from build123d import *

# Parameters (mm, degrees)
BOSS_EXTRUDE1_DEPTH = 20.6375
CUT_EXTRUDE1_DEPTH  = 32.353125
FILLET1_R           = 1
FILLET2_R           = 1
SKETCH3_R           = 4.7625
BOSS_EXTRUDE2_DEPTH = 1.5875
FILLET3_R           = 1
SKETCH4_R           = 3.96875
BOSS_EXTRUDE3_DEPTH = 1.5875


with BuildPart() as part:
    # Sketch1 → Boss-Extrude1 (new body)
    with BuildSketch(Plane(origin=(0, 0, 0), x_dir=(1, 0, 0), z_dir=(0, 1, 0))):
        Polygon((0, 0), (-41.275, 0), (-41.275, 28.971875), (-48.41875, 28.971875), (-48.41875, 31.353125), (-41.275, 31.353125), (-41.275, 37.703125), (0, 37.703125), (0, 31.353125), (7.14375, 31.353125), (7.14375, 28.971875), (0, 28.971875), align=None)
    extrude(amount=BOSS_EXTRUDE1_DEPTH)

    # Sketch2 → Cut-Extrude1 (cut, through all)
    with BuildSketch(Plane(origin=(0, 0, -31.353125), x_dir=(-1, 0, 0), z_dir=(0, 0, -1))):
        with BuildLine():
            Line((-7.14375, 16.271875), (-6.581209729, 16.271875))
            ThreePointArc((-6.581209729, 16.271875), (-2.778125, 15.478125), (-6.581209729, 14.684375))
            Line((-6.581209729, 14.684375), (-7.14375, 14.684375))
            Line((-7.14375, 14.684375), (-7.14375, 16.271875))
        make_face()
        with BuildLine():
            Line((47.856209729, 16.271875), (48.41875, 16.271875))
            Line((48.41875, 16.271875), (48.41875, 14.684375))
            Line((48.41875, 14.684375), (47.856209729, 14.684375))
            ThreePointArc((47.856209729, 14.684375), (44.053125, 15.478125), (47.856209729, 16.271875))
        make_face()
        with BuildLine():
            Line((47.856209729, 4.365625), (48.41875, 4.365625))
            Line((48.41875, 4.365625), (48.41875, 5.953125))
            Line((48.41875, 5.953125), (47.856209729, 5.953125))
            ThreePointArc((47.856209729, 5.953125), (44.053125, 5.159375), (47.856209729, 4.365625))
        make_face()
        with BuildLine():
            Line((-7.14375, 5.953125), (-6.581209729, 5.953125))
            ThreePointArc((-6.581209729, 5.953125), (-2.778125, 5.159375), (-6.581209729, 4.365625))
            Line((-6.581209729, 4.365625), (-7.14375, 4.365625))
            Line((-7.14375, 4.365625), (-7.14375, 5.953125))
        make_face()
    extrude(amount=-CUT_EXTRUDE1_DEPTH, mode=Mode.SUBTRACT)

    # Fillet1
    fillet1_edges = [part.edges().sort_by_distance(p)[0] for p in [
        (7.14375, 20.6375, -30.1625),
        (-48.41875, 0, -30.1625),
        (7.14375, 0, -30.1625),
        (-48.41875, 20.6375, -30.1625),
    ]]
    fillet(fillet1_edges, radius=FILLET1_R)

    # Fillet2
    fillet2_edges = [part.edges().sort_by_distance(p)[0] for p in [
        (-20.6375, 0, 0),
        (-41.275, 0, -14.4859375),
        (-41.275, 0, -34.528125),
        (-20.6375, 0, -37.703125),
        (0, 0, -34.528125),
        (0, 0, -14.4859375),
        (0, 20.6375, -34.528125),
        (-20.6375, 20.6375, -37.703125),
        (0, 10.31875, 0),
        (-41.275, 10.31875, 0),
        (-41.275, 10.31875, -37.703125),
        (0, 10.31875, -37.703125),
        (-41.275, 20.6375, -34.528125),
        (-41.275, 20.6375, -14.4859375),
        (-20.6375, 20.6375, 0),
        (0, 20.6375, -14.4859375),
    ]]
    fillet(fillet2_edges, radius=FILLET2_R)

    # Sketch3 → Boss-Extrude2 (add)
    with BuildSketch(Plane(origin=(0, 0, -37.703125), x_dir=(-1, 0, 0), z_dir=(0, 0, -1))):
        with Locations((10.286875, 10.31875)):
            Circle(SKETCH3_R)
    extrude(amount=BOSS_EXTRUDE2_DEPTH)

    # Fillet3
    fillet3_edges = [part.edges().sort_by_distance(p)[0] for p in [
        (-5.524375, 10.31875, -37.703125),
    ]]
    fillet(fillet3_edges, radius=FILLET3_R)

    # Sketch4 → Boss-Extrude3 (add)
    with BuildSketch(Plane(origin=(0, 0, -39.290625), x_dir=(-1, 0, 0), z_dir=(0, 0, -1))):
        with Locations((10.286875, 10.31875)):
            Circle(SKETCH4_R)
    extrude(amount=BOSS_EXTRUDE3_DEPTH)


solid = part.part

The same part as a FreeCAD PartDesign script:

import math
import FreeCAD as App
import Part
import Sketcher

V = App.Vector
Q = App.Units.Quantity


def edges_at(feature, points):
    """Names of the edges that pass closest to the given points."""
    edges = feature.Shape.Edges
    near = lambda p: min(range(len(edges)), key=lambda i: edges[i].distToShape(Part.Vertex(*p))[0])
    return sorted({f"Edge{near(p) + 1}" for p in points})


def add_polygon(sketch, points):
    """Adds a closed chain of lines whose ends are joined by coincident constraints."""
    first, n = sketch.GeometryCount, len(points)
    for a, b in zip(points, points[1:] + points[:1]):
        sketch.addGeometry(Part.LineSegment(App.Vector(*a, 0), App.Vector(*b, 0)), False)
    for i in range(n):
        sketch.addConstraint(Sketcher.Constraint("Coincident", first + i, 2, first + (i + 1) % n, 1))

doc = App.newDocument("Part")
body = doc.addObject("PartDesign::Body", "Body")

# Sketch on XZ plane
sketch1 = body.newObject("Sketcher::SketchObject", "Sketch")
sketch1.AttachmentSupport = (doc.getObject("XZ_Plane"), [""])
sketch1.MapMode = "FlatFace"
add_polygon(sketch1, [(-41.3, 0), (0, 0), (0, -29), (7.1, -29), (7.1, -31.4), (0, -31.4), (0, -37.7), (-41.3, -37.7), (-41.3, -31.4), (-48.4, -31.4), (-48.4, -29), (-41.3, -29)])  # lines 0-11
sketch1.addConstraint(Sketcher.Constraint("Horizontal", 0))
sketch1.addConstraint(Sketcher.Constraint("Vertical", 1))
sketch1.addConstraint(Sketcher.Constraint("Horizontal", 2))
sketch1.addConstraint(Sketcher.Constraint("Vertical", 3))
sketch1.addConstraint(Sketcher.Constraint("Horizontal", 4))
sketch1.addConstraint(Sketcher.Constraint("Vertical", 5))
sketch1.addConstraint(Sketcher.Constraint("Horizontal", 6))
sketch1.addConstraint(Sketcher.Constraint("Vertical", 7))
sketch1.addConstraint(Sketcher.Constraint("Horizontal", 8))
sketch1.addConstraint(Sketcher.Constraint("Vertical", 9))
sketch1.addConstraint(Sketcher.Constraint("Horizontal", 10))
sketch1.addConstraint(Sketcher.Constraint("Vertical", 11))
sketch1.addConstraint(Sketcher.Constraint("Coincident", 0, 2, -1, 1))
sketch1.addConstraint(Sketcher.Constraint("PointOnObject", 4, 2, -2))
sketch1.addConstraint(Sketcher.Constraint("Horizontal", 4, 2, 7, 2))
sketch1.addConstraint(Sketcher.Constraint("Horizontal", 2, 2, 9, 2))
sketch1.addConstraint(Sketcher.Constraint("Vertical", 7, 2, 10, 2))
sketch1.addConstraint(Sketcher.Constraint("Equal", 4, 8))
sketch1.addConstraint(Sketcher.Constraint("DistanceY", 5, 2, 5, 1, Q("0.25 in")))
sketch1.addConstraint(Sketcher.Constraint("DistanceX", 0, 1, 0, 2, Q("1.625 in")))
sketch1.addConstraint(Sketcher.Constraint("DistanceX", 2, 1, 2, 2, Q("0.28125 in")))
sketch1.addConstraint(Sketcher.Constraint("DistanceY", 1, 2, 1, 1, Q("1.140625 in")))
sketch1.addConstraint(Sketcher.Constraint("DistanceY", 3, 2, 3, 1, Q("0.09375 in")))
pad1 = body.newObject("PartDesign::Pad", "Pad")
pad1.Profile = sketch1
pad1.Length = Q("0.8125 in")
pad1.Reversed = True

# Sketch on XY plane
sketch2 = body.newObject("Sketcher::SketchObject", "Sketch001")
sketch2.AttachmentSupport = (doc.getObject("XY_Plane"), [""])
sketch2.MapMode = "FlatFace"
sketch2.AttachmentOffset = App.Placement(V(0, 0, -1.234375 * 25.4), App.Rotation())
sketch2.addGeometry(Part.LineSegment(V(6.6, 16.3, 0), V(7.1, 16.3, 0)), False)
sketch2.addGeometry(Part.LineSegment(V(7.1, 16.3, 0), V(7.1, 14.7, 0)), False)
sketch2.addGeometry(Part.LineSegment(V(7.1, 14.7, 0), V(6.6, 14.7, 0)), False)
sketch2.addGeometry(Part.ArcOfCircle(Part.Circle(V(4.8, 15.5, 0), V(0, 0, 1), 2), math.radians(24), math.radians(336)), False)
sketch2.addGeometry(Part.LineSegment(V(-48.4, 16.3, 0), V(-47.9, 16.3, 0)), False)
sketch2.addGeometry(Part.ArcOfCircle(Part.Circle(V(-46, 15.5, 0), V(0, 0, 1), 2), math.radians(-156), math.radians(156)), False)
sketch2.addGeometry(Part.LineSegment(V(-47.9, 14.7, 0), V(-48.4, 14.7, 0)), False)
sketch2.addGeometry(Part.LineSegment(V(-48.4, 14.7, 0), V(-48.4, 16.3, 0)), False)
sketch2.addGeometry(Part.LineSegment(V(-47.9, 4.4, 0), V(-48.4, 4.4, 0)), False)
sketch2.addGeometry(Part.LineSegment(V(-48.4, 4.4, 0), V(-48.4, 6, 0)), False)
sketch2.addGeometry(Part.LineSegment(V(-48.4, 6, 0), V(-47.9, 6, 0)), False)
sketch2.addGeometry(Part.ArcOfCircle(Part.Circle(V(-46, 5.2, 0), V(0, 0, 1), 2), math.radians(-156), math.radians(156)), False)
sketch2.addGeometry(Part.LineSegment(V(6.6, 6, 0), V(7.1, 6, 0)), False)
sketch2.addGeometry(Part.LineSegment(V(7.1, 6, 0), V(7.1, 4.4, 0)), False)
sketch2.addGeometry(Part.LineSegment(V(7.1, 4.4, 0), V(6.6, 4.4, 0)), False)
sketch2.addGeometry(Part.ArcOfCircle(Part.Circle(V(4.8, 5.2, 0), V(0, 0, 1), 2), math.radians(24), math.radians(336)), False)
sketch2.addConstraint(Sketcher.Constraint("Coincident", 0, 2, 1, 1))
sketch2.addConstraint(Sketcher.Constraint("Coincident", 1, 2, 2, 1))
sketch2.addConstraint(Sketcher.Constraint("Coincident", 2, 2, 3, 2))
sketch2.addConstraint(Sketcher.Constraint("Coincident", 3, 1, 0, 1))
sketch2.addConstraint(Sketcher.Constraint("Coincident", 4, 2, 5, 2))
sketch2.addConstraint(Sketcher.Constraint("Coincident", 5, 1, 6, 1))
sketch2.addConstraint(Sketcher.Constraint("Coincident", 6, 2, 7, 1))
sketch2.addConstraint(Sketcher.Constraint("Coincident", 7, 2, 4, 1))
sketch2.addConstraint(Sketcher.Constraint("Coincident", 8, 2, 9, 1))
sketch2.addConstraint(Sketcher.Constraint("Coincident", 9, 2, 10, 1))
sketch2.addConstraint(Sketcher.Constraint("Coincident", 10, 2, 11, 2))
sketch2.addConstraint(Sketcher.Constraint("Coincident", 11, 1, 8, 1))
sketch2.addConstraint(Sketcher.Constraint("Coincident", 12, 2, 13, 1))
sketch2.addConstraint(Sketcher.Constraint("Coincident", 13, 2, 14, 1))
sketch2.addConstraint(Sketcher.Constraint("Coincident", 14, 2, 15, 2))
sketch2.addConstraint(Sketcher.Constraint("Coincident", 15, 1, 12, 1))
sketch2.addConstraint(Sketcher.Constraint("Horizontal", 0))
sketch2.addConstraint(Sketcher.Constraint("Vertical", 1))
sketch2.addConstraint(Sketcher.Constraint("Horizontal", 2))
sketch2.addConstraint(Sketcher.Constraint("Horizontal", 4))
sketch2.addConstraint(Sketcher.Constraint("Horizontal", 6))
sketch2.addConstraint(Sketcher.Constraint("Vertical", 7))
sketch2.addConstraint(Sketcher.Constraint("Horizontal", 8))
sketch2.addConstraint(Sketcher.Constraint("Vertical", 9))
sketch2.addConstraint(Sketcher.Constraint("Horizontal", 10))
sketch2.addConstraint(Sketcher.Constraint("Horizontal", 12))
sketch2.addConstraint(Sketcher.Constraint("Vertical", 13))
sketch2.addConstraint(Sketcher.Constraint("Horizontal", 14))
sketch2.addConstraint(Sketcher.Constraint("Equal", 3, 5))
sketch2.addConstraint(Sketcher.Constraint("Equal", 5, 11))
sketch2.addConstraint(Sketcher.Constraint("Equal", 11, 15))
sketch2.addConstraint(Sketcher.Constraint("Horizontal", 3, 3, 5, 3))
sketch2.addConstraint(Sketcher.Constraint("Horizontal", 11, 3, 15, 3))
sketch2.addConstraint(Sketcher.Constraint("Horizontal", 3, 1, 4, 2))
sketch2.addConstraint(Sketcher.Constraint("Horizontal", 2, 2, 5, 1))
sketch2.addConstraint(Sketcher.Constraint("Horizontal", 10, 2, 12, 2))
sketch2.addConstraint(Sketcher.Constraint("Horizontal", 11, 1, 13, 2))
sketch2.addConstraint(Sketcher.Constraint("Vertical", 5, 3, 11, 3))
sketch2.addConstraint(Sketcher.Constraint("Vertical", 3, 3, 15, 3))
sketch2.addConstraint(Sketcher.Constraint("Vertical", 2, 2, 3, 1))
sketch2.addConstraint(Sketcher.Constraint("Vertical", 7, 2, 8, 2))
sketch2.addConstraint(Sketcher.Constraint("Vertical", 5, 1, 10, 2))
sketch2.addConstraint(Sketcher.Constraint("Vertical", 10, 2, 11, 1))
sketch2.addConstraint(Sketcher.Constraint("Vertical", 1, 2, 12, 2))
sketch2.addConstraint(Sketcher.Constraint("Equal", 2, 4))
sketch2.addConstraint(Sketcher.Constraint("Radius", 3, Q("0.078125 in")))
sketch2.addConstraint(Sketcher.Constraint("DistanceX", 5, 3, 3, 3, Q("2 in")))
sketch2.addConstraint(Sketcher.Constraint("DistanceY", 1, 2, 1, 1, Q("0.0625 in")))
sketch2.addConstraint(Sketcher.Constraint("DistanceX", -1, 1, 3, 3, Q("0.1875 in")))
sketch2.addConstraint(Sketcher.Constraint("DistanceY", -1, 1, 3, 3, Q("0.609375 in")))
sketch2.addConstraint(Sketcher.Constraint("DistanceY", -1, 1, 11, 3, Q("0.203125 in")))
sketch2.addConstraint(Sketcher.Constraint("DistanceX", -1, 1, 0, 2, Q("0.28125 in")))
pocket1 = body.newObject("PartDesign::Pocket", "Pocket")
pocket1.Profile = sketch2
pocket1.Type = "ThroughAll"
pocket1.Reversed = True
doc.recompute()

fillet = body.newObject("PartDesign::Fillet", "Fillet")
fillet.Base = (pocket1, edges_at(pocket1, [
    (7.144, 20.637, -30.163),
    (-48.419, 0, -30.163),
    (7.144, 0, -30.163),
    (-48.419, 20.637, -30.163),
]))
fillet.Radius = 1
doc.recompute()

fillet2 = body.newObject("PartDesign::Fillet", "Fillet001")
fillet2.Base = (fillet, edges_at(fillet, [
    (-20.637, 0, 0),
    (-41.275, 0, -14.486),
    (-41.275, 0, -34.528),
    (-20.637, 0, -37.703),
    (0, 0, -34.528),
    (0, 0, -14.486),
    (0, 20.637, -34.528),
    (-20.637, 20.637, -37.703),
    (0, 10.319, 0),
    (-41.275, 10.319, 0),
    (-41.275, 10.319, -37.703),
    (0, 10.319, -37.703),
    (-41.275, 20.637, -34.528),
    (-41.275, 20.637, -14.486),
    (-20.637, 20.637, 0),
    (0, 20.637, -14.486),
]))
fillet2.Radius = 1

# Sketch on XY plane
sketch3 = body.newObject("Sketcher::SketchObject", "Sketch002")
sketch3.AttachmentSupport = (doc.getObject("XY_Plane"), [""])
sketch3.MapMode = "FlatFace"
sketch3.AttachmentOffset = App.Placement(V(0, 0, -1.484375 * 25.4), App.Rotation())
sketch3.addGeometry(Part.Circle(V(-10.3, 10.3, 0), V(0, 0, 1), 4.8), False)
sketch3.addConstraint(Sketcher.Constraint("Diameter", 0, Q("0.375 in")))
sketch3.addConstraint(Sketcher.Constraint("DistanceY", -1, 1, 0, 3, Q("0.40625 in")))
sketch3.addConstraint(Sketcher.Constraint("DistanceX", 0, 3, -1, 1, 10.286875))
pad2 = body.newObject("PartDesign::Pad", "Pad001")
pad2.Profile = sketch3
pad2.Length = Q("0.0625 in")
pad2.Reversed = True
doc.recompute()

fillet3 = body.newObject("PartDesign::Fillet", "Fillet002")
fillet3.Base = (pad2, edges_at(pad2, [(-5.524, 10.319, -37.703)]))
fillet3.Radius = 1

# Sketch on XY plane
sketch4 = body.newObject("Sketcher::SketchObject", "Sketch003")
sketch4.AttachmentSupport = (doc.getObject("XY_Plane"), [""])
sketch4.MapMode = "FlatFace"
sketch4.AttachmentOffset = App.Placement(V(0, 0, -1.546875 * 25.4), App.Rotation())
sketch4.addGeometry(Part.Circle(V(-10.3, 10.3, 0), V(0, 0, 1), 4), False)
sketch4.addConstraint(Sketcher.Constraint("Diameter", 0, Q("0.3125 in")))
sketch4.addConstraint(Sketcher.Constraint("DistanceY", -1, 1, 0, 3, Q("0.40625 in")))
sketch4.addConstraint(Sketcher.Constraint("DistanceX", 0, 3, -1, 1, 10.286875))
pad3 = body.newObject("PartDesign::Pad", "Pad002")
pad3.Profile = sketch4
pad3.Length = Q("0.0625 in")
pad3.Reversed = True

doc.recompute()
